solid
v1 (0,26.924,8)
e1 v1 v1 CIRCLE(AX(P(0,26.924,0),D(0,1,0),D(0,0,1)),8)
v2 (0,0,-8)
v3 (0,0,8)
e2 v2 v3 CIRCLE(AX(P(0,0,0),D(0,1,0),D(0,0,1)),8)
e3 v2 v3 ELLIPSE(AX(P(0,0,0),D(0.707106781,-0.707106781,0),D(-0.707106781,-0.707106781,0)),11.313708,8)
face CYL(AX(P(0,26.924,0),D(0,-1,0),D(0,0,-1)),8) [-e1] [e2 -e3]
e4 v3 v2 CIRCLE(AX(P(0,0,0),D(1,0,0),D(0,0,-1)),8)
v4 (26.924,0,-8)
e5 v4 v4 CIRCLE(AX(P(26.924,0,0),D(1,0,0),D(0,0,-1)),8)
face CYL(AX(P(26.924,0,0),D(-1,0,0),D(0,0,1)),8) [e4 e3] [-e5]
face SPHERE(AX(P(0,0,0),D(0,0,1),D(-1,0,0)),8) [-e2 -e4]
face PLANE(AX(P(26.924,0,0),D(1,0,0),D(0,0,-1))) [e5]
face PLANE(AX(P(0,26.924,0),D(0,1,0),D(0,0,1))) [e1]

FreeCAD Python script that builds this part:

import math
import FreeCAD as App
import Part
import Sketcher

doc = App.newDocument("Part")
params = doc.addObject("Spreadsheet::Sheet", "Params")
for row, (alias, value) in enumerate([
    ("sketch1_diameter", "16 mm"),
    ("pad1_length", "26.924 mm"),
    ("sketch2_diameter", "16 mm"),
    ("pad2_length", "26.924 mm"),
    ("sketch3_radius", "8 mm"),
    ("revolution_angle", "90 deg"),
], start=1):
    params.set(f"A{row}", alias)
    params.set(f"B{row}", "=" + value)
    params.setAlias(f"B{row}", alias)

body = doc.addObject("PartDesign::Body", "Body")

sketch1 = body.newObject("Sketcher::SketchObject", "Sketch")
sketch1.AttachmentSupport = (doc.getObject("XZ_Plane"), [""])
sketch1.MapMode = "FlatFace"
sketch1.addGeometry(Part.Circle(App.Vector(0, 0, 0), App.Vector(0, 0, 1), 8), False)
sketch1.addConstraint(Sketcher.Constraint("Coincident", 0, 3, -1, 1))
sketch1.addConstraint(Sketcher.Constraint("Diameter", 0, 16.0))
sketch1.setExpression("Constraints[1]", "Params.sketch1_diameter")
pad1 = body.newObject("PartDesign::Pad", "Pad")
pad1.Profile = sketch1
pad1.setExpression("Length", "Params.pad1_length")
pad1.Reversed = True

sketch2 = body.newObject("Sketcher::SketchObject", "Sketch001")
sketch2.AttachmentSupport = (doc.getObject("YZ_Plane"), [""])
sketch2.MapMode = "FlatFace"
sketch2.addGeometry(Part.Circle(App.Vector(0, 0, 0), App.Vector(0, 0, 1), 8), False)
sketch2.addConstraint(Sketcher.Constraint("Coincident", 0, 3, -1, 1))
sketch2.addConstraint(Sketcher.Constraint("Diameter", 0, 16.0))
sketch2.setExpression("Constraints[1]", "Params.sketch2_diameter")
pad2 = body.newObject("PartDesign::Pad", "Pad001")
pad2.Profile = sketch2
pad2.setExpression("Length", "Params.pad2_length")

sketch3 = body.newObject("Sketcher::SketchObject", "Sketch002")
sketch3.AttachmentSupport = (doc.getObject("YZ_Plane"), [""])
sketch3.MapMode = "FlatFace"
sketch3.addGeometry(Part.LineSegment(App.Vector(0, 8, 0), App.Vector(0, -8, 0)), False)
sketch3.addGeometry(Part.ArcOfCircle(Part.Circle(App.Vector(0, 0, 0), App.Vector(0, 0, 1), 8), math.radians(90), math.radians(270)), False)
sketch3.addConstraint(Sketcher.Constraint("Coincident", 0, 1, 1, 1))
sketch3.addConstraint(Sketcher.Constraint("Coincident", 1, 2, 0, 2))
sketch3.addConstraint(Sketcher.Constraint("Vertical", 0))
sketch3.addConstraint(Sketcher.Constraint("Coincident", 1, 3, -1, 1))
sketch3.addConstraint(Sketcher.Constraint("PointOnObject", 0, 1, -2))
sketch3.addConstraint(Sketcher.Constraint("Radius", 1, 8.0))
sketch3.setExpression("Constraints[5]", "Params.sketch3_radius")
revolution = body.newObject("PartDesign::Revolution", "Revolution")
revolution.Profile = sketch3
revolution.ReferenceAxis = (sketch3, ["V_Axis"])
revolution.setExpression("Angle", "Params.revolution_angle")
revolution.Reversed = True

doc.recompute()
